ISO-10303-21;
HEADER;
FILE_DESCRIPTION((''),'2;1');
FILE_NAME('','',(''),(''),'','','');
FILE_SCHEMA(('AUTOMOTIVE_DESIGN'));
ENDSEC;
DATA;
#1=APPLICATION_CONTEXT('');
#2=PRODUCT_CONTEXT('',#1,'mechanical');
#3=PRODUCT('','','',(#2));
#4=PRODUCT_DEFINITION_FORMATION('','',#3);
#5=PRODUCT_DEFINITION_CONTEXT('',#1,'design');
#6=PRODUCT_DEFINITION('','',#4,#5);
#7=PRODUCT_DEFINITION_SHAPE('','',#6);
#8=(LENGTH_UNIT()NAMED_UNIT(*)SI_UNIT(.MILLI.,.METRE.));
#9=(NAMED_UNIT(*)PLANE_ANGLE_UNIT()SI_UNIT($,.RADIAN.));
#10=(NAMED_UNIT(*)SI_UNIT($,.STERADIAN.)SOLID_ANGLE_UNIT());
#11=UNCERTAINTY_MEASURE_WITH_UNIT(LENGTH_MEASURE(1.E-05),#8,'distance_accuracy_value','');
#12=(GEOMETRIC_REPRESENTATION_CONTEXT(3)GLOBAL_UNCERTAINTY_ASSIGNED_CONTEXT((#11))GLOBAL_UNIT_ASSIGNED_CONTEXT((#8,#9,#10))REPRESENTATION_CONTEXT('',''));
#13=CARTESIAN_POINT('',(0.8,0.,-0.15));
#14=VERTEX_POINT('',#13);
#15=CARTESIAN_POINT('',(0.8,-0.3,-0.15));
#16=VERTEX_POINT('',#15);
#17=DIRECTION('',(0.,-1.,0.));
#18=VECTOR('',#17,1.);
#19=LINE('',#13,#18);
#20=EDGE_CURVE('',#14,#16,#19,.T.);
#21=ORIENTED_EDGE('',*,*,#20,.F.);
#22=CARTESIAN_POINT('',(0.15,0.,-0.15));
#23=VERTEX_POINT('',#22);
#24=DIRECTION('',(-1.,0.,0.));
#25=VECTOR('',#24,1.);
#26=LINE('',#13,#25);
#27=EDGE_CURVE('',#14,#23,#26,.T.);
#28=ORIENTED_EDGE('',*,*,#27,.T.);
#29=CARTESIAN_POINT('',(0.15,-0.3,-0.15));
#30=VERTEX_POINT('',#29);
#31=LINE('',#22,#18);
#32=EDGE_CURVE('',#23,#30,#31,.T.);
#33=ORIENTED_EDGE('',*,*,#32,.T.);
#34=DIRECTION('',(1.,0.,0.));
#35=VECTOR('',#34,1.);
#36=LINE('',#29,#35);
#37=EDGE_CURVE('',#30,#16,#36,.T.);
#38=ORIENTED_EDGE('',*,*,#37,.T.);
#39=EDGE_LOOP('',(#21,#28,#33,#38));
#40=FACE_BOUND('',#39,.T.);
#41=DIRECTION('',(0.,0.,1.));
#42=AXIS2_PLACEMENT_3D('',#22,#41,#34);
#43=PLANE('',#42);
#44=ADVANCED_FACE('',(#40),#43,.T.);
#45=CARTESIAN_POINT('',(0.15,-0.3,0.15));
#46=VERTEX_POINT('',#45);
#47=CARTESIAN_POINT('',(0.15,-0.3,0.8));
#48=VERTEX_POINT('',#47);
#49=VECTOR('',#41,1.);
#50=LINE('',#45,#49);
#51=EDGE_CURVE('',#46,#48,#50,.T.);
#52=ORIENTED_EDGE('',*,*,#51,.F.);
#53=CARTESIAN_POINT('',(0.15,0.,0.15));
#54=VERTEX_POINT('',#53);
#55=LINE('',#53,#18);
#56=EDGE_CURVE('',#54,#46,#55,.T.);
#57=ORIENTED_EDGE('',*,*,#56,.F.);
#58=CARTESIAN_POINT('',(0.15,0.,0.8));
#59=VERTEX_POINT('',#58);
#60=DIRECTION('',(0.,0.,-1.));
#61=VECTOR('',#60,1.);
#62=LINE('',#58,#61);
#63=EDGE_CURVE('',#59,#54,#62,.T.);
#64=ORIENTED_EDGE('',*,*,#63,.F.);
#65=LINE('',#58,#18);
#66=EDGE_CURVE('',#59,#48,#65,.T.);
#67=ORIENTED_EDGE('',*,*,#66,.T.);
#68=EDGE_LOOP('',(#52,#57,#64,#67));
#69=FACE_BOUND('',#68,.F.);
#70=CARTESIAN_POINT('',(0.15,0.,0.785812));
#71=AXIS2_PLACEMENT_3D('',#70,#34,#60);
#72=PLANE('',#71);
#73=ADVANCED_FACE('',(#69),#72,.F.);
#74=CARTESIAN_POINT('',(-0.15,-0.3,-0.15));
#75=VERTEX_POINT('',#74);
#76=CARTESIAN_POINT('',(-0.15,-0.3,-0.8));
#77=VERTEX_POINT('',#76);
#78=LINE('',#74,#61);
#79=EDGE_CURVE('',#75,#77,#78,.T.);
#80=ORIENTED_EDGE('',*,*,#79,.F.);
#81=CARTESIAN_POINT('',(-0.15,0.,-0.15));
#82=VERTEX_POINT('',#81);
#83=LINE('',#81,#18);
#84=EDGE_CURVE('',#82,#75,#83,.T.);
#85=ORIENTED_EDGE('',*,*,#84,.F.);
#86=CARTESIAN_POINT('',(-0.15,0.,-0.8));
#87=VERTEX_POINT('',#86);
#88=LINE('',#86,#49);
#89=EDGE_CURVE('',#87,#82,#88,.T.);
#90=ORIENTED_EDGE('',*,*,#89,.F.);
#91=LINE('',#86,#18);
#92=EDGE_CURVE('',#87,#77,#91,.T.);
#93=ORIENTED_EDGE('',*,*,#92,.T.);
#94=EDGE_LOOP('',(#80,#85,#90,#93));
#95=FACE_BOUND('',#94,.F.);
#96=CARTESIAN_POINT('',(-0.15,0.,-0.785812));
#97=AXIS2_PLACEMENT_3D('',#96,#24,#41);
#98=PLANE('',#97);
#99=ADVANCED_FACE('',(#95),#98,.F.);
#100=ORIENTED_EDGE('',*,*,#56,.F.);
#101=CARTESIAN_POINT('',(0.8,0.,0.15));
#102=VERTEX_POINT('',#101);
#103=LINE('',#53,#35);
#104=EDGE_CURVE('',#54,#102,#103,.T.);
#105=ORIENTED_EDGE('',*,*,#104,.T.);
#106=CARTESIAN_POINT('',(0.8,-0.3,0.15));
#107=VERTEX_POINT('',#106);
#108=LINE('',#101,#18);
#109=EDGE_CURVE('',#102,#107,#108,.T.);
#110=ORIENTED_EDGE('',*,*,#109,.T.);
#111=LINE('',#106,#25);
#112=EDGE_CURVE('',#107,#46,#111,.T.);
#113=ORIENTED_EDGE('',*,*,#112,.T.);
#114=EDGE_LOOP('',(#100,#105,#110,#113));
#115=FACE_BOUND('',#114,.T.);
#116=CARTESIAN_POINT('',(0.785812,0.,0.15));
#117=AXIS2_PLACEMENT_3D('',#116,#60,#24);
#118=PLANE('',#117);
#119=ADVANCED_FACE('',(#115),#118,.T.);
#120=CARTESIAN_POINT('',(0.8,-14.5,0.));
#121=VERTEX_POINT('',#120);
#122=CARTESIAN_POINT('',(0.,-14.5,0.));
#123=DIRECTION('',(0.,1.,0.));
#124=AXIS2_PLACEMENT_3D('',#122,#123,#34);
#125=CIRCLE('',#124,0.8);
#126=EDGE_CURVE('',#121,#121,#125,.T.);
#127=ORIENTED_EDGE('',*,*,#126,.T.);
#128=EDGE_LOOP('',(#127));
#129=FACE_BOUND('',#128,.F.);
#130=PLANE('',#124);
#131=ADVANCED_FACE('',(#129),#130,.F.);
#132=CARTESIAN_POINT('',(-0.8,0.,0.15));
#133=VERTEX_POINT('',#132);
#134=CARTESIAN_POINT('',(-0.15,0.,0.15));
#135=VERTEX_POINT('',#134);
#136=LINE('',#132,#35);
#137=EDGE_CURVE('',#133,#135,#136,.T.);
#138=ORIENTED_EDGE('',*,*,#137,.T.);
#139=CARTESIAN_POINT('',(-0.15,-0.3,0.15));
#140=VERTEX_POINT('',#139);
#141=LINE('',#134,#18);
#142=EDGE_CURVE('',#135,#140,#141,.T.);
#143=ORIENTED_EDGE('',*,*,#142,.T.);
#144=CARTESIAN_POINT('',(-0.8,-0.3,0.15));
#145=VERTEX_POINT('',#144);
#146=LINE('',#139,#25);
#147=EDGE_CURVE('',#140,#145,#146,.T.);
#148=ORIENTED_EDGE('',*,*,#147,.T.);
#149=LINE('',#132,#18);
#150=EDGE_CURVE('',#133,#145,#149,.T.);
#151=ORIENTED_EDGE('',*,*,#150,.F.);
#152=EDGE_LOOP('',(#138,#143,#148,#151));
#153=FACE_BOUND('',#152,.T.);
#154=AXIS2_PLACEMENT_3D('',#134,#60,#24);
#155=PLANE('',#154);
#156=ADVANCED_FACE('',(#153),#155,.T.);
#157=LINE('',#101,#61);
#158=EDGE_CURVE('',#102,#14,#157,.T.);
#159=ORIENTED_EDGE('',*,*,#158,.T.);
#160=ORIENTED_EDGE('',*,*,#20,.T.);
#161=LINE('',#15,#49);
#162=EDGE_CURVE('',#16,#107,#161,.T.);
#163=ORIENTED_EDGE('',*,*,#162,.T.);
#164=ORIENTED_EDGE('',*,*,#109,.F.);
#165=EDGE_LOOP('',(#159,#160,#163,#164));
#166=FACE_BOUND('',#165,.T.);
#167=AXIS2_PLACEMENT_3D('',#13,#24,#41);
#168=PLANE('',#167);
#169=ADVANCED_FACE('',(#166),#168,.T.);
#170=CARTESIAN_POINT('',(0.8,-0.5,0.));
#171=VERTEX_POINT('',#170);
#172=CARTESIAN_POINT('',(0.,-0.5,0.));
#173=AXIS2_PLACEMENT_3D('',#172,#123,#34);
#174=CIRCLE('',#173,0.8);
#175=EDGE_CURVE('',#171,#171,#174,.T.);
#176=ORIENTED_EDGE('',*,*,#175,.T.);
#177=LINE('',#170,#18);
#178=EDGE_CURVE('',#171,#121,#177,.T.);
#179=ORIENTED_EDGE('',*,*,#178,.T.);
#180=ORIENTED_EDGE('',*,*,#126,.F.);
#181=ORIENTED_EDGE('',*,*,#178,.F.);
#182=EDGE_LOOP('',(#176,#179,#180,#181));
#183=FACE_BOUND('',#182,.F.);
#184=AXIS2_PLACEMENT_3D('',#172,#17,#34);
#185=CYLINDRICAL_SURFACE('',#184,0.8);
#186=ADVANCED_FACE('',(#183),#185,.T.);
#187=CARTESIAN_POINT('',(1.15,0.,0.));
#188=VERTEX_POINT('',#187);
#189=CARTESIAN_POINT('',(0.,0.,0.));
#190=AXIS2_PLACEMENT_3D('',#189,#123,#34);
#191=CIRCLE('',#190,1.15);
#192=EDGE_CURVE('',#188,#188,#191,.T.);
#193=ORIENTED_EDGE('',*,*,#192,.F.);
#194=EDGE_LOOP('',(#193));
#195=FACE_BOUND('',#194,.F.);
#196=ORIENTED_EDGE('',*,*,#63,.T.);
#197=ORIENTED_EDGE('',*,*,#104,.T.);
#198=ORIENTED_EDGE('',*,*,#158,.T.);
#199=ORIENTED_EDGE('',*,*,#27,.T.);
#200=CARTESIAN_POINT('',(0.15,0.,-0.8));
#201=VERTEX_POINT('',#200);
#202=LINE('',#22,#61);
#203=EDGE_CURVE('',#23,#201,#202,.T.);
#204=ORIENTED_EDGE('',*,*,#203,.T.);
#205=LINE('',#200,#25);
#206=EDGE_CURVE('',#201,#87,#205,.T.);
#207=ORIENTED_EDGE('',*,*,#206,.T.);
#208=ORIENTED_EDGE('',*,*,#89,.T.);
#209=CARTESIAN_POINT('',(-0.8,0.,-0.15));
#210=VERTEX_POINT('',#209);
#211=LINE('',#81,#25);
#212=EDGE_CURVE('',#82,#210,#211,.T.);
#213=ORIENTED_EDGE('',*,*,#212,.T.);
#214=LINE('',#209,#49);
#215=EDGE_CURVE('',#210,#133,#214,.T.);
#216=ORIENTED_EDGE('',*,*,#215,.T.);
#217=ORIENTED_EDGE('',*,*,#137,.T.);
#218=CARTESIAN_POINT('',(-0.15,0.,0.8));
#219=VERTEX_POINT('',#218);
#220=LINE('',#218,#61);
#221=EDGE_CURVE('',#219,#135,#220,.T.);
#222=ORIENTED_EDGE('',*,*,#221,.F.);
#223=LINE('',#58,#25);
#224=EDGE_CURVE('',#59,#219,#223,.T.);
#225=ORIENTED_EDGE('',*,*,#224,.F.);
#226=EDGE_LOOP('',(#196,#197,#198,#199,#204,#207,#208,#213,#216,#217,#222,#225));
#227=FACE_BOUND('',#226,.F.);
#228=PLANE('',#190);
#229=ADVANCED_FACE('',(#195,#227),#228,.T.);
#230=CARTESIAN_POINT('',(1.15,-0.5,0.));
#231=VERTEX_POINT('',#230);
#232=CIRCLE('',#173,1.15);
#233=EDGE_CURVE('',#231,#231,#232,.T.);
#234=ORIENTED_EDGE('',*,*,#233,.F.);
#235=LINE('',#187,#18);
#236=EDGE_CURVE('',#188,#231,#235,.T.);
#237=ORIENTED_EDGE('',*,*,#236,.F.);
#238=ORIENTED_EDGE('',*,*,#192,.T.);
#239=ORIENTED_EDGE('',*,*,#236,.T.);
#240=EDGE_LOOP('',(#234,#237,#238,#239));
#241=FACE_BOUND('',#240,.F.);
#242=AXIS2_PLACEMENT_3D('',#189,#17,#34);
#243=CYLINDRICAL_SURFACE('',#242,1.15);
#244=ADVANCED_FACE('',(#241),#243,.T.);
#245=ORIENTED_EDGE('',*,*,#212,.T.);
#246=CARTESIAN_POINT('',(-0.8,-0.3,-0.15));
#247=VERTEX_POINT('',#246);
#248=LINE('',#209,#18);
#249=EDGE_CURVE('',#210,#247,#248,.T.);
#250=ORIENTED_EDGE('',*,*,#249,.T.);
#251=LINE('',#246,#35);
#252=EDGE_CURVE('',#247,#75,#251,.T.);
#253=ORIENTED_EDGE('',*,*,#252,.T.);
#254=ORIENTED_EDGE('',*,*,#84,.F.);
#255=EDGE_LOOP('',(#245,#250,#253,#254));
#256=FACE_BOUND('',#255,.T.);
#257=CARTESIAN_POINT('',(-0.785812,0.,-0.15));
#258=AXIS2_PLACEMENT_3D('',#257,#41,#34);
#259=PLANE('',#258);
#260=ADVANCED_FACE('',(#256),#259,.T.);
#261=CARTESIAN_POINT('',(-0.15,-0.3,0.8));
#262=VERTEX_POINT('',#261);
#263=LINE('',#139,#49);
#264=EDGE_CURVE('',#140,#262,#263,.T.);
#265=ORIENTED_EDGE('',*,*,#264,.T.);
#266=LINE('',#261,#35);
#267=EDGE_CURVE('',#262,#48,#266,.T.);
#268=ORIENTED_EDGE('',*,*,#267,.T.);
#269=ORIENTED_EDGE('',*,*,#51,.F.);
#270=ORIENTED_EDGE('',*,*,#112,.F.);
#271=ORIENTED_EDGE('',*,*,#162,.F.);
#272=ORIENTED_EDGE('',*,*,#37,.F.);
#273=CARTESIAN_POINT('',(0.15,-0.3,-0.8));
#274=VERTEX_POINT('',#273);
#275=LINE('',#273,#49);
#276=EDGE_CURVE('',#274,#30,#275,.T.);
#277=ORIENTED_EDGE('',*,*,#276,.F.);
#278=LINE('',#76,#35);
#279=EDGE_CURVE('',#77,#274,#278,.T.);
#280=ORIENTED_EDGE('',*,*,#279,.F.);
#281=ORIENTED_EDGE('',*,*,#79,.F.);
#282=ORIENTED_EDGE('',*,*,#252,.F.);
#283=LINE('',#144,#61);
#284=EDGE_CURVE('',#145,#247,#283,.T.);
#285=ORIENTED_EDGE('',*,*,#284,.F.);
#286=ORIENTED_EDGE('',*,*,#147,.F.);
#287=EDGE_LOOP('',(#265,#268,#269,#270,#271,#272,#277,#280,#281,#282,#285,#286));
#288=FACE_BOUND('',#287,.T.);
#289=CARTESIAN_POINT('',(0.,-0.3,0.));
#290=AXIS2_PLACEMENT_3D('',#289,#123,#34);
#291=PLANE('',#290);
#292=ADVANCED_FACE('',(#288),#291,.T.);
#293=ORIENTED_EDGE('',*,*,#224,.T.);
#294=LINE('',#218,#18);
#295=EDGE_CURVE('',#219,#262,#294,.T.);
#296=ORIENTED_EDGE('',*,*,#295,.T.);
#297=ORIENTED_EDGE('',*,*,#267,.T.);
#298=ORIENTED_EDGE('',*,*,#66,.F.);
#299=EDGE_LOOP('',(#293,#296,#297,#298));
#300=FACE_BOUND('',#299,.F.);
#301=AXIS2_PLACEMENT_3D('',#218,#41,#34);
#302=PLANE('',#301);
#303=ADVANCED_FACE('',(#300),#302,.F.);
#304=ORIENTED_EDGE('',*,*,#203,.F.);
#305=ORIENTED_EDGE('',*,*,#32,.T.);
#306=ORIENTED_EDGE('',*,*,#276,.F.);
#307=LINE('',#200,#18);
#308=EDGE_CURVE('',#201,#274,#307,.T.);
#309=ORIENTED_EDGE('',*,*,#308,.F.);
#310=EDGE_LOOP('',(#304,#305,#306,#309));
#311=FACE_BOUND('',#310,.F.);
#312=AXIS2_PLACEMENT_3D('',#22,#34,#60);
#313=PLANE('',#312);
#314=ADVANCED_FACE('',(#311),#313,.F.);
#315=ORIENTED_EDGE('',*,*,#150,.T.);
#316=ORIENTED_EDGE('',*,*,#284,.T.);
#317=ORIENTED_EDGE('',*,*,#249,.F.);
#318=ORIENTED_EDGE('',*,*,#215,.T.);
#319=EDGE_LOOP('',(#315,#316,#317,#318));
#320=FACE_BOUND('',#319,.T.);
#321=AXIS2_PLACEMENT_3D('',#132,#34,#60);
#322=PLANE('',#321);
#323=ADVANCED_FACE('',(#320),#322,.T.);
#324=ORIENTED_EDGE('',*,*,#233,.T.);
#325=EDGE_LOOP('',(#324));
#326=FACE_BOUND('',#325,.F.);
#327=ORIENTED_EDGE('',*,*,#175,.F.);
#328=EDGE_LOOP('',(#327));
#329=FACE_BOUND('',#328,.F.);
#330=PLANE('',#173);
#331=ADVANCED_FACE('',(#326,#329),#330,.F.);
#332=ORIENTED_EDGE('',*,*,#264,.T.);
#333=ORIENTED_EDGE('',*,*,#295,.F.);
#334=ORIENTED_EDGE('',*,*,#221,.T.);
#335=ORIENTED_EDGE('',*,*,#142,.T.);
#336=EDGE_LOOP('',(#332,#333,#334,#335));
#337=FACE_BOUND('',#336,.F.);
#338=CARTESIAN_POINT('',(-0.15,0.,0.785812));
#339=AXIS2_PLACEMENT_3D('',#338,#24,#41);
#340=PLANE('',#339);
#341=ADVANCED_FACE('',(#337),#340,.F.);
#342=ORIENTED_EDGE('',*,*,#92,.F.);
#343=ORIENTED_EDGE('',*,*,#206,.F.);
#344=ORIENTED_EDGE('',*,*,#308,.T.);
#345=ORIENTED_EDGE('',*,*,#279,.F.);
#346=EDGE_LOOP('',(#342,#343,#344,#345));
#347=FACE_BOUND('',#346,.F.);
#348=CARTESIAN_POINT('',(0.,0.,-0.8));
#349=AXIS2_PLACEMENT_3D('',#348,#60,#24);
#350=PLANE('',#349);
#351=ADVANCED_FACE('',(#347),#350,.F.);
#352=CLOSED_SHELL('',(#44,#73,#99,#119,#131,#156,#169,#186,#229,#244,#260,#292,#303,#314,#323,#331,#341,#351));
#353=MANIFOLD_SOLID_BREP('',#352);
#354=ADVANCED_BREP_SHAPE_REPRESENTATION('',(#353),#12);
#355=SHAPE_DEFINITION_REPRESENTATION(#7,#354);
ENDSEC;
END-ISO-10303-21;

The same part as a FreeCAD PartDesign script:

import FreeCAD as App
import Part
import Sketcher

V = App.Vector
Q = App.Units.Quantity

doc = App.newDocument("Part")
body = doc.addObject("PartDesign::Body", "Body")

sketch1 = body.newObject("Sketcher::SketchObject", "Sketch")
sketch1.AttachmentSupport = (doc.getObject("XY_Plane"), [""])
sketch1.MapMode = "FlatFace"
sketch1.addGeometry([
    Part.LineSegment(V(1.15, 0, 0), V(0, 0, 0)),
    Part.LineSegment(V(0, 0, 0), V(0, -14.5, 0)),
    Part.LineSegment(V(0, -14.5, 0), V(0.8, -14.5, 0)),
    Part.LineSegment(V(0.8, -14.5, 0), V(0.8, -0.5, 0)),
    Part.LineSegment(V(0.8, -0.5, 0), V(1.15, -0.5, 0)),
    Part.LineSegment(V(1.15, -0.5, 0), V(1.15, 0, 0)),
], False)
sketch1.addConstraint([
    Sketcher.Constraint("Coincident", 0, 2, 1, 1),
    Sketcher.Constraint("Coincident", 1, 2, 2, 1),
    Sketcher.Constraint("Coincident", 2, 2, 3, 1),
    Sketcher.Constraint("Coincident", 3, 2, 4, 1),
    Sketcher.Constraint("Coincident", 4, 2, 5, 1),
    Sketcher.Constraint("Coincident", 5, 2, 0, 1),
    Sketcher.Constraint("Horizontal", 0),
    Sketcher.Constraint("Vertical", 1),
    Sketcher.Constraint("Horizontal", 2),
    Sketcher.Constraint("Vertical", 3),
    Sketcher.Constraint("Horizontal", 4),
    Sketcher.Constraint("Vertical", 5),
    Sketcher.Constraint("Coincident", 0, 2, -1, 1),
    Sketcher.Constraint("DistanceY", 3, 1, 3, 2, Q("14 mm")),
    Sketcher.Constraint("DistanceX", 2, 1, 2, 2, Q("0.8 mm")),
    Sketcher.Constraint("DistanceY", 5, 1, 5, 2, Q("0.5 mm")),
    Sketcher.Constraint("DistanceX", 0, 2, 0, 1, Q("1.15 mm")),
])
revolution = body.newObject("PartDesign::Revolution", "Revolution")
revolution.Profile = sketch1
revolution.ReferenceAxis = (sketch1, ["V_Axis"])
revolution.Angle = 360

sketch2 = body.newObject("Sketcher::SketchObject", "Sketch001")
sketch2.AttachmentSupport = (doc.getObject("XZ_Plane"), [""])
sketch2.MapMode = "FlatFace"
sketch2.addGeometry([
    Part.LineSegment(V(-0.15, 0.8, 0), V(0.15, 0.8, 0)),
    Part.LineSegment(V(0.15, 0.8, 0), V(0.15, 0.15, 0)),
    Part.LineSegment(V(0.15, 0.15, 0), V(0.8, 0.15, 0)),
    Part.LineSegment(V(0.8, 0.15, 0), V(0.8, -0.15, 0)),
    Part.LineSegment(V(0.8, -0.15, 0), V(0.15, -0.15, 0)),
    Part.LineSegment(V(0.15, -0.15, 0), V(0.15, -0.8, 0)),
    Part.LineSegment(V(0.15, -0.8, 0), V(-0.15, -0.8, 0)),
    Part.LineSegment(V(-0.15, -0.8, 0), V(-0.15, -0.15, 0)),
    Part.LineSegment(V(-0.15, -0.15, 0), V(-0.8, -0.15, 0)),
    Part.LineSegment(V(-0.8, -0.15, 0), V(-0.8, 0.15, 0)),
    Part.LineSegment(V(-0.8, 0.15, 0), V(-0.15, 0.15, 0)),
    Part.LineSegment(V(-0.15, 0.15, 0), V(-0.15, 0.8, 0)),
], False)
sketch2.addConstraint([
    Sketcher.Constraint("Coincident", 0, 2, 1, 1),
    Sketcher.Constraint("Coincident", 1, 2, 2, 1),
    Sketcher.Constraint("Coincident", 2, 2, 3, 1),
    Sketcher.Constraint("Coincident", 3, 2, 4, 1),
    Sketcher.Constraint("Coincident", 4, 2, 5, 1),
    Sketcher.Constraint("Coincident", 5, 2, 6, 1),
    Sketcher.Constraint("Coincident", 6, 2, 7, 1),
    Sketcher.Constraint("Coincident", 7, 2, 8, 1),
    Sketcher.Constraint("Coincident", 8, 2, 9, 1),
    Sketcher.Constraint("Coincident", 9, 2, 10, 1),
    Sketcher.Constraint("Coincident", 10, 2, 11, 1),
    Sketcher.Constraint("Coincident", 11, 2, 0, 1),
    Sketcher.Constraint("Horizontal", 0),
    Sketcher.Constraint("Vertical", 1),
    Sketcher.Constraint("Horizontal", 2),
    Sketcher.Constraint("Vertical", 3),
    Sketcher.Constraint("Horizontal", 4),
    Sketcher.Constraint("Vertical", 5),
    Sketcher.Constraint("Horizontal", 6),
    Sketcher.Constraint("Vertical", 7),
    Sketcher.Constraint("Horizontal", 8),
    Sketcher.Constraint("Vertical", 9),
    Sketcher.Constraint("Horizontal", 10),
    Sketcher.Constraint("Vertical", 11),
    Sketcher.Constraint("Symmetric", 0, 2, 6, 2, -1, 1),
    Sketcher.Constraint("Symmetric", 2, 2, 8, 2, -1, 1),
    Sketcher.Constraint("Symmetric", 4, 2, 10, 2, -1, 1),
    Sketcher.Constraint("Symmetric", 4, 2, 7, 2, -2),
    Sketcher.Constraint("Equal", 10, 1),
    Sketcher.Constraint("Equal", 6, 3),
    Sketcher.Constraint("DistanceX", 0, 1, 0, 2, Q("0.3 mm")),
    Sketcher.Constraint("DistanceY", 5, 2, 0, 2, Q("1.6 mm")),
])
pocket1 = body.newObject("PartDesign::Pocket", "Pocket")
pocket1.Profile = sketch2
pocket1.Length = 0.3
pocket1.Reversed = True

doc.recompute()
